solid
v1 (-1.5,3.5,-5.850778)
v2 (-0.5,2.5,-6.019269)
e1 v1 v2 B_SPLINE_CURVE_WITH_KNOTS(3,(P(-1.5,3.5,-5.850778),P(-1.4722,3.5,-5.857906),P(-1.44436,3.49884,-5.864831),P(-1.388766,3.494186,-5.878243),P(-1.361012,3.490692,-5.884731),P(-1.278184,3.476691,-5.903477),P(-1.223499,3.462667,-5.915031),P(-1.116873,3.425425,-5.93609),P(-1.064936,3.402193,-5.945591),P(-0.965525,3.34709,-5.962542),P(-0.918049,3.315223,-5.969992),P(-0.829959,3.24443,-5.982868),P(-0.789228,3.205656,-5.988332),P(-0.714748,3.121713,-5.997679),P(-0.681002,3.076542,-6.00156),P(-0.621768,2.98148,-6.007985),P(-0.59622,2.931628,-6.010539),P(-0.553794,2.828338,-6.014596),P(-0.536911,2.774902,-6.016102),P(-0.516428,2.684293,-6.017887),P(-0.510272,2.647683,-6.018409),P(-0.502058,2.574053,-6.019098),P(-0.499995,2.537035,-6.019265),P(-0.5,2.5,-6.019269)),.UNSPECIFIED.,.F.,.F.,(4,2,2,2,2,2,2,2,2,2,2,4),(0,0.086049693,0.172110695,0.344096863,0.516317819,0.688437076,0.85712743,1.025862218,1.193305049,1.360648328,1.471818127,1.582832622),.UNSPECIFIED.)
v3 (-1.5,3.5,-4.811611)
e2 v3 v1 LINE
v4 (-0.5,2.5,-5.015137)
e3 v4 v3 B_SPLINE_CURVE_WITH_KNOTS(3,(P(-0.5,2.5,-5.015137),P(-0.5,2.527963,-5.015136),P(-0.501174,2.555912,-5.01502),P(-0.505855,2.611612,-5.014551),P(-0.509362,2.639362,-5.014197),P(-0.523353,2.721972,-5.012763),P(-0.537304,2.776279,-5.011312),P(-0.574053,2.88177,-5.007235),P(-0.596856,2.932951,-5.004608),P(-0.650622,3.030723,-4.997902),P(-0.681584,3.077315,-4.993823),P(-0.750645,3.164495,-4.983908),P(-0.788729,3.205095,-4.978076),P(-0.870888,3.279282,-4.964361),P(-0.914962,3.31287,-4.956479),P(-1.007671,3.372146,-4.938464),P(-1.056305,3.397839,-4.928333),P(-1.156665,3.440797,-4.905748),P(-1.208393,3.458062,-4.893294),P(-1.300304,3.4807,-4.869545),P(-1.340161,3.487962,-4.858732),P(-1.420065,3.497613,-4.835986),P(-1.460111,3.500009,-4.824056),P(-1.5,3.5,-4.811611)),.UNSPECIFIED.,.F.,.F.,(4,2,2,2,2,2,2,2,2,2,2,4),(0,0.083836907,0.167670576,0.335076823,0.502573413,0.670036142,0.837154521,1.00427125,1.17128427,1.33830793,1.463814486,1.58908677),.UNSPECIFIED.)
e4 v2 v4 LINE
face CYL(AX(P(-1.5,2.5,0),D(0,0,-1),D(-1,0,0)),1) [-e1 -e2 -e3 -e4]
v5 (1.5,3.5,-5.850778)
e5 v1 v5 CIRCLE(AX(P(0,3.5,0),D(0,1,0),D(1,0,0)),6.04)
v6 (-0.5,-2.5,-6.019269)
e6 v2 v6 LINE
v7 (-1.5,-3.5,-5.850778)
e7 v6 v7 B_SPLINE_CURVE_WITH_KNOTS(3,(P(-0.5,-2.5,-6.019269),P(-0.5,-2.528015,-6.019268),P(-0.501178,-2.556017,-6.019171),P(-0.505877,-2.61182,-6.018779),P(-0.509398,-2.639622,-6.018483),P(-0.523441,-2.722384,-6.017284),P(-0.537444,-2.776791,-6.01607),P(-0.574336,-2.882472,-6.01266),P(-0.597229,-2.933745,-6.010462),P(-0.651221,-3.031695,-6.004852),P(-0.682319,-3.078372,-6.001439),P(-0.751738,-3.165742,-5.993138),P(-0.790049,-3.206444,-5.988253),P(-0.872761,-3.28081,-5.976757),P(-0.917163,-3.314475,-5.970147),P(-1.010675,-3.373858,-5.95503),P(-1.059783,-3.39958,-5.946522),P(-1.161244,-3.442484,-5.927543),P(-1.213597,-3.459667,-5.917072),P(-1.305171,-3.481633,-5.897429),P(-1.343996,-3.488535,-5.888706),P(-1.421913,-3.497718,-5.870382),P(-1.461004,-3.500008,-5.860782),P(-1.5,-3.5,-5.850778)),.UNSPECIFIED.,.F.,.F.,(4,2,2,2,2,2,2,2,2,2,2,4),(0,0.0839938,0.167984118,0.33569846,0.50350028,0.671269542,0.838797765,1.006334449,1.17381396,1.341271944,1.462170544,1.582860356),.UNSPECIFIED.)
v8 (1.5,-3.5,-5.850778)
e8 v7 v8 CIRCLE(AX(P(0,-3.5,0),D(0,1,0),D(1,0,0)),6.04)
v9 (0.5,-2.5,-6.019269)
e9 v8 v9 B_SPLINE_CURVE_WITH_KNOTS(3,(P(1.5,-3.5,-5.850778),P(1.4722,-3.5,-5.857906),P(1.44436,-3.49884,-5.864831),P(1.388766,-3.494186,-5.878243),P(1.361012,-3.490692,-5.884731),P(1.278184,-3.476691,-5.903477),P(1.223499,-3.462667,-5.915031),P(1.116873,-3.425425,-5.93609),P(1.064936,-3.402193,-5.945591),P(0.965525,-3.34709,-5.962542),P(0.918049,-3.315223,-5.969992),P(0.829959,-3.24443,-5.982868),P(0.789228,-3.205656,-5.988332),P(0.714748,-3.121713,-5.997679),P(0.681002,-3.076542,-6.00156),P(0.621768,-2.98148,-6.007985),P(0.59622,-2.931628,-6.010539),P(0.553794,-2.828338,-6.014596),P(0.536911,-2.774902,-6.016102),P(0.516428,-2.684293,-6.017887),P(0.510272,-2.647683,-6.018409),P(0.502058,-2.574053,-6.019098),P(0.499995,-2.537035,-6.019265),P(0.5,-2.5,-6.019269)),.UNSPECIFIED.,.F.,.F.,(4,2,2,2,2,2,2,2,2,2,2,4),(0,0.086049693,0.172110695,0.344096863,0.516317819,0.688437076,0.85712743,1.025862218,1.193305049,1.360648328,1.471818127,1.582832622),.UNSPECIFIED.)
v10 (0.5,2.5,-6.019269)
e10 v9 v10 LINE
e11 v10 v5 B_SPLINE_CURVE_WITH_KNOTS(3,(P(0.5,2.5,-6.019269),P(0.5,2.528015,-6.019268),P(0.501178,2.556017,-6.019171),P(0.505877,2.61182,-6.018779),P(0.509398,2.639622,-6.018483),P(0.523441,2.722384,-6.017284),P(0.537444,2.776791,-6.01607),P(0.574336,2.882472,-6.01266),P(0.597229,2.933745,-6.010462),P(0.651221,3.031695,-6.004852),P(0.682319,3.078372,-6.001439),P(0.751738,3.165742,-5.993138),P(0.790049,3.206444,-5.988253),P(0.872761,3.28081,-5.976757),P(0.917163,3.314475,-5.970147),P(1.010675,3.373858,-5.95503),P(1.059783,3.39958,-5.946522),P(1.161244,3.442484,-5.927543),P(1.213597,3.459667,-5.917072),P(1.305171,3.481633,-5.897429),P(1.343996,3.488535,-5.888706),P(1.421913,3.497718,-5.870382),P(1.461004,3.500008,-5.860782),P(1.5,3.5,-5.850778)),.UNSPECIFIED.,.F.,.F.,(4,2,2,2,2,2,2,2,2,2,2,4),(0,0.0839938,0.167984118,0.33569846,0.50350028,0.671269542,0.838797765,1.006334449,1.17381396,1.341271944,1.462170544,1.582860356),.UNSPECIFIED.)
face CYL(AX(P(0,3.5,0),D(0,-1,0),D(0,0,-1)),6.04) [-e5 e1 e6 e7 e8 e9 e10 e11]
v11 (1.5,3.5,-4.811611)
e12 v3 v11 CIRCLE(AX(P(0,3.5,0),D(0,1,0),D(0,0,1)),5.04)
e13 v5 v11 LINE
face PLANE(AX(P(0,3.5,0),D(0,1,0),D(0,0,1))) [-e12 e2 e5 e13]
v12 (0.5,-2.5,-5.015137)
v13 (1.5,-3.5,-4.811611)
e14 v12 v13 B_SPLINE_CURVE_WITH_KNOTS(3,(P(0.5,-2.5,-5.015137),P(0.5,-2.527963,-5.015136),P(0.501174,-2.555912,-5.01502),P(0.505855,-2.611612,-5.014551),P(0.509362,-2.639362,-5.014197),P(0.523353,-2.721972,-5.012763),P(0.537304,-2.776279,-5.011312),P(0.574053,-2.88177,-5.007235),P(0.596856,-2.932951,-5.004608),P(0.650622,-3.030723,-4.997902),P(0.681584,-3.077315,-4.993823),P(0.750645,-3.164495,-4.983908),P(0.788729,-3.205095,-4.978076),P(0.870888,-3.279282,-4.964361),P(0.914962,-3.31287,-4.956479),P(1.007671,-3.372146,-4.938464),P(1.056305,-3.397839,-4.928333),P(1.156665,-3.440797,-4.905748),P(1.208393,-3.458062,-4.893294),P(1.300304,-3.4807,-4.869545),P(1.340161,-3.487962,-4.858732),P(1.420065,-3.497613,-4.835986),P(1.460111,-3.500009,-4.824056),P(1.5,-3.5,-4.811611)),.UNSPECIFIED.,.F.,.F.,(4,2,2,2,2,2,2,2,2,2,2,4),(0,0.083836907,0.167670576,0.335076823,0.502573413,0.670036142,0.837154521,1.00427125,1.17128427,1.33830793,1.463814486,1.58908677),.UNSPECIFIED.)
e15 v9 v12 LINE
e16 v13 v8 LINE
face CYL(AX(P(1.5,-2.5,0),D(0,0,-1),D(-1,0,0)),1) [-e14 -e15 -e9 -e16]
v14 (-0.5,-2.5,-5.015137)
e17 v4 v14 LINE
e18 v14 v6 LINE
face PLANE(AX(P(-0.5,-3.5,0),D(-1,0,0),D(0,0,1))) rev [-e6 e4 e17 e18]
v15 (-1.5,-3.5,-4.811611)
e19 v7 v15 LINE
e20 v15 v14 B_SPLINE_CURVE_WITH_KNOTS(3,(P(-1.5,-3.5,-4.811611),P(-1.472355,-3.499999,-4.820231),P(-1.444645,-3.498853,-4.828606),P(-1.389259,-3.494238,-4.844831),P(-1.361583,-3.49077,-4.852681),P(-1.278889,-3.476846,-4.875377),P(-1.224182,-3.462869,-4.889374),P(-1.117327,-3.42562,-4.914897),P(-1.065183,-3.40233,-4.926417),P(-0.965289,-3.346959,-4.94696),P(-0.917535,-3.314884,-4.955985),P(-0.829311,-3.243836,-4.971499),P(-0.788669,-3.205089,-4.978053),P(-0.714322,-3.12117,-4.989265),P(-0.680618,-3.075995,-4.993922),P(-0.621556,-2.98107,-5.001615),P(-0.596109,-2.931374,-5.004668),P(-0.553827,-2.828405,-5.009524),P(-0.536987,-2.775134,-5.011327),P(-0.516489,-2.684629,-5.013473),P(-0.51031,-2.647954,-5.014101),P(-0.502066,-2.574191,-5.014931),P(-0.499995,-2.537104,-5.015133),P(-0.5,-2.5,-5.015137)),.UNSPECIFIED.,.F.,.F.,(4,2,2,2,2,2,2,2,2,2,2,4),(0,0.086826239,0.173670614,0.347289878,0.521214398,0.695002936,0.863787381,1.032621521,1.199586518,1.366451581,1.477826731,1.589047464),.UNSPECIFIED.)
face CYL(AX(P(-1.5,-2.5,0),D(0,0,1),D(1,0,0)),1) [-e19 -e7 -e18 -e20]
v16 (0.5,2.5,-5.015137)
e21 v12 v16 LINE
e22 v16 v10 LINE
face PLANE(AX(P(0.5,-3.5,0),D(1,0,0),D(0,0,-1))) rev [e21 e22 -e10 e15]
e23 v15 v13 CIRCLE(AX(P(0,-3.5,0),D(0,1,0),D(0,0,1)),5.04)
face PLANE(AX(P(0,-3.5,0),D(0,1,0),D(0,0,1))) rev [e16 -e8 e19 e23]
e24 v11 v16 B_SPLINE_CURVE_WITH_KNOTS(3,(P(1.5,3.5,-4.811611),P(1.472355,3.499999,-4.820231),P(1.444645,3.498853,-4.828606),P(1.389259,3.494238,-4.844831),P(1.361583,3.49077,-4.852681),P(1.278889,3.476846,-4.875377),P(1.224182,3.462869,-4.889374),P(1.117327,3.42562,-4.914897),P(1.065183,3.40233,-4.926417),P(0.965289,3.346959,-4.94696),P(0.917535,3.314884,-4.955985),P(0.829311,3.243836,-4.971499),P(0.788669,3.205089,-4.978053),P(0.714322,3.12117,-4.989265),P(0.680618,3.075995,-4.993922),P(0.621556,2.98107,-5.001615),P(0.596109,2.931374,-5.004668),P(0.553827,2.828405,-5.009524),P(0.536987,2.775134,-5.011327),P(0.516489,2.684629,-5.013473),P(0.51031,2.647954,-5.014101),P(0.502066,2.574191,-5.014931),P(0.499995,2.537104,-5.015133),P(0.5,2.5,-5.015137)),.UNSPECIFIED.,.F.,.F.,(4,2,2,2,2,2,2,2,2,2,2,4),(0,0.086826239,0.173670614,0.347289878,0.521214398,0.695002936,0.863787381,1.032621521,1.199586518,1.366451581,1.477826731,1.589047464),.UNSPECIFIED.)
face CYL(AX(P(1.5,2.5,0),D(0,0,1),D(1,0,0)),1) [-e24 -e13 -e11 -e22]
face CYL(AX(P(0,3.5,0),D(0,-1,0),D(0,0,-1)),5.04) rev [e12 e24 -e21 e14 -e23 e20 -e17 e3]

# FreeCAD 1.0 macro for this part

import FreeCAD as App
import Part
import Sketcher


def edges_at(feature, points):
    """Names of the edges that pass closest to the given points."""
    edges = feature.Shape.Edges
    near = lambda p: min(range(len(edges)), key=lambda i: edges[i].distToShape(Part.Vertex(*p))[0])
    return sorted({f"Edge{near(p) + 1}" for p in points})


def add_polygon(sketch, points):
    """Adds a closed chain of lines whose ends are joined by coincident constraints."""
    first, n = sketch.GeometryCount, len(points)
    for a, b in zip(points, points[1:] + points[:1]):
        sketch.addGeometry(Part.LineSegment(App.Vector(*a, 0), App.Vector(*b, 0)), False)
    for i in range(n):
        sketch.addConstraint(Sketcher.Constraint("Coincident", first + i, 2, first + (i + 1) % n, 1))

doc = App.newDocument("Part")
body = doc.addObject("PartDesign::Body", "Body")

# Sketch on XZ plane
sketch1 = body.newObject("Sketcher::SketchObject", "Sketch")
sketch1.AttachmentSupport = (doc.getObject("XZ_Plane"), [""])
sketch1.MapMode = "FlatFace"
sketch1.addGeometry([
    Part.Circle(App.Vector(0, 0, 0), App.Vector(0, 0, 1), 6),
    Part.Circle(App.Vector(0, 0, 0), App.Vector(0, 0, 1), 5),
], False)
sketch1.addConstraint([
    Sketcher.Constraint("Coincident", 0, 3, -1, 1),
    Sketcher.Constraint("Coincident", 1, 3, -1, 1),
    Sketcher.Constraint("Diameter", 0, 12.08),
    Sketcher.Constraint("Diameter", 1, 10.08),
])
pad1 = body.newObject("PartDesign::Pad", "Pad")
pad1.Profile = sketch1
pad1.Length = 7
pad1.Midplane = True

# Sketch on XZ plane
sketch2 = body.newObject("Sketcher::SketchObject", "Sketch001")
sketch2.AttachmentSupport = (doc.getObject("XZ_Plane"), [""])
sketch2.MapMode = "FlatFace"
add_polygon(sketch2, [(-0.5, -1000), (-0.5, 0), (0.5, 0), (0.5, -1000)])  # lines 0-3
sketch2.addConstraint([
    Sketcher.Constraint("Vertical", 0),
    Sketcher.Constraint("Horizontal", 1),
    Sketcher.Constraint("Vertical", 2),
    Sketcher.Constraint("Horizontal", 3),
    Sketcher.Constraint("Symmetric", 0, 2, 1, 2, -1, 1),
    Sketcher.Constraint("DistanceX", 1, 1, 1, 2, 1.0),
    Sketcher.Constraint("DistanceY", 0, 1, 0, 2, 1000.0),
])
pocket1 = body.newObject("PartDesign::Pocket", "Pocket")
pocket1.Profile = sketch2
pocket1.Type = "ThroughAll"
pocket1.Midplane = True
doc.recompute()

fillet = body.newObject("PartDesign::Fillet", "Fillet")
fillet.Base = (pocket1, edges_at(pocket1, [
    (0.5, -3.5, -5.517),
    (-0.5, -3.5, -5.517),
    (0.5, 3.5, -5.517),
    (-0.5, 3.5, -5.517),
]))
fillet.Radius = 1

doc.recompute()
